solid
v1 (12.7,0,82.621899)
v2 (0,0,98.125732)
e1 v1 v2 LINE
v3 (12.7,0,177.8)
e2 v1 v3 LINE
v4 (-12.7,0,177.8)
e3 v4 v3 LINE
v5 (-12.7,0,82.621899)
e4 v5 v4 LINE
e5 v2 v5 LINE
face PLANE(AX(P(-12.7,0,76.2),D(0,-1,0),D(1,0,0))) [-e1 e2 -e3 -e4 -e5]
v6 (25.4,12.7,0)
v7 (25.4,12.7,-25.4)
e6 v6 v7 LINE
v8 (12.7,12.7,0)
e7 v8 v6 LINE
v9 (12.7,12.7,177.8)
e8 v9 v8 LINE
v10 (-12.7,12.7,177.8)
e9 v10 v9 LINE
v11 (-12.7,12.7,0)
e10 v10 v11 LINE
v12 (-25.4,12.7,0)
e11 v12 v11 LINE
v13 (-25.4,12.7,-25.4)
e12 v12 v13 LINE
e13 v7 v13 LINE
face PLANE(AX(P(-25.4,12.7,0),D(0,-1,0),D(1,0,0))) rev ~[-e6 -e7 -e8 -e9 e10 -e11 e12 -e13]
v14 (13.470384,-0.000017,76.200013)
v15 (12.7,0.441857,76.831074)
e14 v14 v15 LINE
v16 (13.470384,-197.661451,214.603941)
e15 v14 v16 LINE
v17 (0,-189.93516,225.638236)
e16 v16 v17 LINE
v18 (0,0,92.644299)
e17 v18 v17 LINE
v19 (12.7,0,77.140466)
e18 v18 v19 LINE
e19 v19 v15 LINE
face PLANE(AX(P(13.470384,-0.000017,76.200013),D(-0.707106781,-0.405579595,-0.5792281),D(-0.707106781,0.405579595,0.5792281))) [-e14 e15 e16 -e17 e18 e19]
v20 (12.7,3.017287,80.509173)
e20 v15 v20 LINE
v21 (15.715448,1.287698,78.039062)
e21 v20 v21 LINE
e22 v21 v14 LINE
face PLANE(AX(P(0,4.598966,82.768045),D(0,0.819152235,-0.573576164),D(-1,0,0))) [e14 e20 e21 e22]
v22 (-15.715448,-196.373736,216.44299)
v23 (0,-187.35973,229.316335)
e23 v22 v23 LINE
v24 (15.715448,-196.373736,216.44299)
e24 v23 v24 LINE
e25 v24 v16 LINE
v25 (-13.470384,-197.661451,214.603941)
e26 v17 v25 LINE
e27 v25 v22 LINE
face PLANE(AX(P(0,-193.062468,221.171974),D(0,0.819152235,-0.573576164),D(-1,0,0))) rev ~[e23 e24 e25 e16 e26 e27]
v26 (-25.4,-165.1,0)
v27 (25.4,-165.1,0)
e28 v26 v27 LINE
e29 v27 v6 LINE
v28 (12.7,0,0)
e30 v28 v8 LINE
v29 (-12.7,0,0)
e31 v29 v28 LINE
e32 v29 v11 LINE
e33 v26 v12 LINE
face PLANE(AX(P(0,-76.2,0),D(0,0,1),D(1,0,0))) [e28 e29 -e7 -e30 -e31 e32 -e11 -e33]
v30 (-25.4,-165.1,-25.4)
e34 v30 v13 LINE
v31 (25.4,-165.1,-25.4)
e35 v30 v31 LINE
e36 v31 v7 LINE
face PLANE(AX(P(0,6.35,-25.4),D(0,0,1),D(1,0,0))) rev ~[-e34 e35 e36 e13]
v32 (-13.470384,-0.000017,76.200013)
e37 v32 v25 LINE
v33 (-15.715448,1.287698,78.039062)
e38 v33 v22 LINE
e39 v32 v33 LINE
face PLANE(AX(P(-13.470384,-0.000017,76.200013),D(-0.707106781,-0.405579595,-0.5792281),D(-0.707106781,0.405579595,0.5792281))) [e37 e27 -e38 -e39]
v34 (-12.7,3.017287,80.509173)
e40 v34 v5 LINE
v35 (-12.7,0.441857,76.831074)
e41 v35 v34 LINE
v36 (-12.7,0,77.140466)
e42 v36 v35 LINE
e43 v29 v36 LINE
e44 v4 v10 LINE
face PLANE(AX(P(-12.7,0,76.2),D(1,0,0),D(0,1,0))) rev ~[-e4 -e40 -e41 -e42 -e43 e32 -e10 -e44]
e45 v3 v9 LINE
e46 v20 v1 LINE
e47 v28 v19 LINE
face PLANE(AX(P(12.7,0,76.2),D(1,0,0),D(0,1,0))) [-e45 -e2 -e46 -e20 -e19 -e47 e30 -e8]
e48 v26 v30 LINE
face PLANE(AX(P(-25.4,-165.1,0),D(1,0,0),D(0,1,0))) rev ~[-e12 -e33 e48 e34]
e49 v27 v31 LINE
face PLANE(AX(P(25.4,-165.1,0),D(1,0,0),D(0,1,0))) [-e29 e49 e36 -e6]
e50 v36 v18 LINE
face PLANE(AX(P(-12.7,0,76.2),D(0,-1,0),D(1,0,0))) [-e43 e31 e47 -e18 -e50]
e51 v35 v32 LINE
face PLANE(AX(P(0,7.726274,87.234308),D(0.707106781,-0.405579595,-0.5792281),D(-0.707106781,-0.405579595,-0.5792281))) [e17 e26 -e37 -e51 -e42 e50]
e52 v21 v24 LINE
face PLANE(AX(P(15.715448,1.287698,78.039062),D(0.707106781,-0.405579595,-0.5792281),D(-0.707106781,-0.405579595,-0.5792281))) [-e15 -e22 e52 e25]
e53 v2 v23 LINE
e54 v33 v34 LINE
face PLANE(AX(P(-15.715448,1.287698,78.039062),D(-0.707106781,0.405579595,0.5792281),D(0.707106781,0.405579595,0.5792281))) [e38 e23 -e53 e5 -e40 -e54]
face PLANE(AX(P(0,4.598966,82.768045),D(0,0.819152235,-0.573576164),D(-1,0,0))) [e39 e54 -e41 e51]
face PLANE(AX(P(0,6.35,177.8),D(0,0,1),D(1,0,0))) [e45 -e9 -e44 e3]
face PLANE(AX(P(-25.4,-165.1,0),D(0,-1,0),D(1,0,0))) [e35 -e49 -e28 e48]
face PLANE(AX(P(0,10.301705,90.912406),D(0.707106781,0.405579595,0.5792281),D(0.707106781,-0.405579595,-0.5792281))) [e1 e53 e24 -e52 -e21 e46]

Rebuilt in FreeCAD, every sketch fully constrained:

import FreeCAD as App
import Part
import Sketcher

V = App.Vector
Q = App.Units.Quantity


def add_polygon(sketch, points):
    """Adds a closed chain of lines whose ends are joined by coincident constraints."""
    first, n = sketch.GeometryCount, len(points)
    for a, b in zip(points, points[1:] + points[:1]):
        sketch.addGeometry(Part.LineSegment(App.Vector(*a, 0), App.Vector(*b, 0)), False)
    for i in range(n):
        sketch.addConstraint(Sketcher.Constraint("Coincident", first + i, 2, first + (i + 1) % n, 1))

doc = App.newDocument("Part")
params = doc.addObject("Spreadsheet::Sheet", "Params")
for row, (alias, value) in enumerate([
    ("sketch1_width", "2 in"),
    ("sketch1_height", "7 in"),
    ("pad1_length", "1 in"),
    ("sketch2_width", "1 in"),
    ("sketch2_height", "0.5 in"),
    ("pad2_length", "8 in"),
    ("sketch3_length", "0.75 in"),
    ("sketch3_length2", "0.125 in"),
    ("pad3_length", "9.5 in"),
], start=1):
    params.set(f"A{row}", alias)
    params.set(f"B{row}", "=" + value)
    params.setAlias(f"B{row}", alias)

body = doc.addObject("PartDesign::Body", "Body")

sketch1 = body.newObject("Sketcher::SketchObject", "Sketch")
sketch1.AttachmentSupport = (doc.getObject("XY_Plane"), [""])
sketch1.MapMode = "FlatFace"
add_polygon(sketch1, [(-25, 13), (-25, -165), (25, -165), (25, 13)])
sketch1.addConstraint(Sketcher.Constraint("Vertical", 0))
sketch1.addConstraint(Sketcher.Constraint("Horizontal", 1))
sketch1.addConstraint(Sketcher.Constraint("Vertical", 2))
sketch1.addConstraint(Sketcher.Constraint("Horizontal", 3))
sketch1.addConstraint(Sketcher.Constraint("DistanceX", 1, 1, 1, 2, Q("2 in")))
sketch1.addConstraint(Sketcher.Constraint("DistanceY", 0, 2, 0, 1, Q("7 in")))
sketch1.addConstraint(Sketcher.Constraint("DistanceX", 0, 2, -1, 1, Q("1 in")))
sketch1.addConstraint(Sketcher.Constraint("DistanceY", 0, 2, -1, 1, Q("6.5 in")))
sketch1.setExpression("Constraints[8]", "Params.sketch1_width")
sketch1.setExpression("Constraints[9]", "Params.sketch1_height")
pad1 = body.newObject("PartDesign::Pad", "Pad")
pad1.Profile = sketch1
pad1.setExpression("Length", "Params.pad1_length")
pad1.Reversed = True

sketch2 = body.newObject("Sketcher::SketchObject", "Sketch001")
sketch2.AttachmentSupport = (doc.getObject("XY_Plane"), [""])
sketch2.MapMode = "FlatFace"
sketch2.AttachmentOffset = App.Placement(V(0, 0, 3 * 25.4), App.Rotation())
add_polygon(sketch2, [(-13, 13), (-13, 0), (13, 0), (13, 13)])
sketch2.addConstraint(Sketcher.Constraint("Vertical", 0))
sketch2.addConstraint(Sketcher.Constraint("Horizontal", 1))
sketch2.addConstraint(Sketcher.Constraint("Vertical", 2))
sketch2.addConstraint(Sketcher.Constraint("Horizontal", 3))
sketch2.addConstraint(Sketcher.Constraint("Symmetric", 0, 2, 1, 2, -1, 1))
sketch2.addConstraint(Sketcher.Constraint("DistanceX", 1, 1, 1, 2, Q("1 in")))
sketch2.addConstraint(Sketcher.Constraint("DistanceY", 0, 2, 0, 1, Q("0.5 in")))
sketch2.setExpression("Constraints[9]", "Params.sketch2_width")
sketch2.setExpression("Constraints[10]", "Params.sketch2_height")
pad2 = body.newObject("PartDesign::Pad", "Pad001")
pad2.Profile = sketch2
pad2.setExpression("Length", "Params.pad2_length")
pad2.Midplane = True

sketch3 = body.newObject("Sketcher::SketchObject", "Sketch002")
sketch3.Placement = App.Placement(V(0, -35.802289, 25.069033), App.Rotation(V(-1, 0, 0), V(0, 0.573576164, 0.819152235), V(0, 0.819152235, -0.573576164), "ZXY"))
add_polygon(sketch3, [(-13.5, 62.4), (0, 75.9), (13.5, 62.4), (15.7, 64.7), (0, 80.4), (-15.7, 64.7)])
sketch3.addConstraint(Sketcher.Constraint("Symmetric", 2, 2, 4, 2, -2))
sketch3.addConstraint(Sketcher.Constraint("Symmetric", 1, 2, 5, 2, -2))
sketch3.addConstraint(Sketcher.Constraint("PointOnObject", 0, 2, -2))
sketch3.addConstraint(Sketcher.Constraint("PointOnObject", 3, 2, -2))
sketch3.addConstraint(Sketcher.Constraint("Perpendicular", 0, 1))
sketch3.addConstraint(Sketcher.Constraint("Perpendicular", 1, 2))
sketch3.addConstraint(Sketcher.Constraint("Perpendicular", 2, 3))
sketch3.addConstraint(Sketcher.Constraint("Distance", 0, Q("0.75 in")))
sketch3.addConstraint(Sketcher.Constraint("Distance", 2, Q("0.125 in")))
sketch3.addConstraint(Sketcher.Constraint("DistanceY", -1, 1, 3, 2, 80.379898))
sketch3.setExpression("Constraints[13]", "Params.sketch3_length")
sketch3.setExpression("Constraints[14]", "Params.sketch3_length2")
pad3 = body.newObject("PartDesign::Pad", "Pad002")
pad3.Profile = sketch3
pad3.setExpression("Length", "Params.pad3_length")
pad3.Reversed = True

doc.recompute()
